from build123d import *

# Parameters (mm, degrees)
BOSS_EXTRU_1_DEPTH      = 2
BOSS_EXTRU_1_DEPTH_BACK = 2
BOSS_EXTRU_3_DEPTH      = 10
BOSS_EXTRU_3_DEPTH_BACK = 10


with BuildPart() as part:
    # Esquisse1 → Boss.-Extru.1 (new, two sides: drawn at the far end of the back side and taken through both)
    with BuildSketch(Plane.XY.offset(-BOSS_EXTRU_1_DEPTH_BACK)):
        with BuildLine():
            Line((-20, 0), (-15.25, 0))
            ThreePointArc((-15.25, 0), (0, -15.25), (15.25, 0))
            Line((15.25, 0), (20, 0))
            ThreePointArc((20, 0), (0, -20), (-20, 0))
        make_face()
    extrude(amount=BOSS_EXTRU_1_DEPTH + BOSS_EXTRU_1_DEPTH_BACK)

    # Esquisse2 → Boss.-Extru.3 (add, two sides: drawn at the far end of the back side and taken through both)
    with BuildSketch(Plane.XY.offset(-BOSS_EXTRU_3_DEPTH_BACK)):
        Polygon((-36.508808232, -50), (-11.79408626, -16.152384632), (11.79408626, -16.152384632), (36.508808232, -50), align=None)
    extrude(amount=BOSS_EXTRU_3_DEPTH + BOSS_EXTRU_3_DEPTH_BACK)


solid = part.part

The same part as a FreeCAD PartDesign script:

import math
import FreeCAD as App
import Part
import Sketcher
Q = App.Units.Quantity


def add_polygon(sketch, points):
    """Adds a closed chain of lines whose ends are joined by coincident constraints."""
    first, n = sketch.GeometryCount, len(points)
    for a, b in zip(points, points[1:] + points[:1]):
        sketch.addGeometry(Part.LineSegment(App.Vector(*a, 0), App.Vector(*b, 0)), False)
    for i in range(n):
        sketch.addConstraint(Sketcher.Constraint("Coincident", first + i, 2, first + (i + 1) % n, 1))

doc = App.newDocument("Part")
body = doc.addObject("PartDesign::Body", "Body")

# Sketch on XY plane
sketch1 = body.newObject("Sketcher::SketchObject", "Sketch")
sketch1.AttachmentSupport = (doc.getObject("XY_Plane"), [""])
sketch1.MapMode = "FlatFace"
sketch1.addGeometry([
    Part.LineSegment(App.Vector(-15.2, 0, 0), App.Vector(-20, 0, 0)),
    Part.ArcOfCircle(Part.Circle(App.Vector(0, 0, 0), App.Vector(0, 0, 1), 20), math.radians(180), math.radians(360)),
    Part.LineSegment(App.Vector(20, 0, 0), App.Vector(15.2, 0, 0)),
    Part.ArcOfCircle(Part.Circle(App.Vector(0, 0, 0), App.Vector(0, 0, 1), 15.2), math.radians(180), math.radians(360)),
], False)
sketch1.addConstraint([
    Sketcher.Constraint("Coincident", 0, 2, 1, 1),
    Sketcher.Constraint("Coincident", 1, 2, 2, 1),
    Sketcher.Constraint("Coincident", 2, 2, 3, 2),
    Sketcher.Constraint("Coincident", 3, 1, 0, 1),
    Sketcher.Constraint("Horizontal", 0),
    Sketcher.Constraint("Horizontal", 2),
    Sketcher.Constraint("Coincident", 1, 3, -1, 1),
    Sketcher.Constraint("Coincident", 3, 3, -1, 1),
    Sketcher.Constraint("PointOnObject", 0, 2, -1),
    Sketcher.Constraint("PointOnObject", 1, 2, -1),
    Sketcher.Constraint("Radius", 1, Q("20 mm")),
    Sketcher.Constraint("Radius", 3, Q("15.25 mm")),
])
pad1 = body.newObject("PartDesign::Pad", "Pad")
pad1.Profile = sketch1
pad1.Type = "TwoLengths"
pad1.Length = 2
pad1.Length2 = 2

# Sketch on XY plane
sketch2 = body.newObject("Sketcher::SketchObject", "Sketch001")
sketch2.AttachmentSupport = (doc.getObject("XY_Plane"), [""])
sketch2.MapMode = "FlatFace"
add_polygon(sketch2, [(-12, -16), (-37, -50), (37, -50), (12, -16)])  # lines 0-3
sketch2.addConstraint([
    Sketcher.Constraint("Horizontal", 1),
    Sketcher.Constraint("Horizontal", 3),
    Sketcher.Constraint("Equal", 0, 2),
    Sketcher.Constraint("DistanceY", 0, 2, -1, 1, Q("50 mm")),
    Sketcher.Constraint("DistanceX", 1, 1, 1, 2, Q("73.017616 mm")),
    Sketcher.Constraint("DistanceX", 3, 2, 3, 1, Q("23.588173 mm")),
    Sketcher.Constraint("DistanceX", 0, 2, -1, 1, Q("36.508808 mm")),
    Sketcher.Constraint("Distance", 0, Q("41.910363 mm")),
])
pad2 = body.newObject("PartDesign::Pad", "Pad001")
pad2.Profile = sketch2
pad2.Type = "TwoLengths"
pad2.Length = 10
pad2.Length2 = 10

doc.recompute()
